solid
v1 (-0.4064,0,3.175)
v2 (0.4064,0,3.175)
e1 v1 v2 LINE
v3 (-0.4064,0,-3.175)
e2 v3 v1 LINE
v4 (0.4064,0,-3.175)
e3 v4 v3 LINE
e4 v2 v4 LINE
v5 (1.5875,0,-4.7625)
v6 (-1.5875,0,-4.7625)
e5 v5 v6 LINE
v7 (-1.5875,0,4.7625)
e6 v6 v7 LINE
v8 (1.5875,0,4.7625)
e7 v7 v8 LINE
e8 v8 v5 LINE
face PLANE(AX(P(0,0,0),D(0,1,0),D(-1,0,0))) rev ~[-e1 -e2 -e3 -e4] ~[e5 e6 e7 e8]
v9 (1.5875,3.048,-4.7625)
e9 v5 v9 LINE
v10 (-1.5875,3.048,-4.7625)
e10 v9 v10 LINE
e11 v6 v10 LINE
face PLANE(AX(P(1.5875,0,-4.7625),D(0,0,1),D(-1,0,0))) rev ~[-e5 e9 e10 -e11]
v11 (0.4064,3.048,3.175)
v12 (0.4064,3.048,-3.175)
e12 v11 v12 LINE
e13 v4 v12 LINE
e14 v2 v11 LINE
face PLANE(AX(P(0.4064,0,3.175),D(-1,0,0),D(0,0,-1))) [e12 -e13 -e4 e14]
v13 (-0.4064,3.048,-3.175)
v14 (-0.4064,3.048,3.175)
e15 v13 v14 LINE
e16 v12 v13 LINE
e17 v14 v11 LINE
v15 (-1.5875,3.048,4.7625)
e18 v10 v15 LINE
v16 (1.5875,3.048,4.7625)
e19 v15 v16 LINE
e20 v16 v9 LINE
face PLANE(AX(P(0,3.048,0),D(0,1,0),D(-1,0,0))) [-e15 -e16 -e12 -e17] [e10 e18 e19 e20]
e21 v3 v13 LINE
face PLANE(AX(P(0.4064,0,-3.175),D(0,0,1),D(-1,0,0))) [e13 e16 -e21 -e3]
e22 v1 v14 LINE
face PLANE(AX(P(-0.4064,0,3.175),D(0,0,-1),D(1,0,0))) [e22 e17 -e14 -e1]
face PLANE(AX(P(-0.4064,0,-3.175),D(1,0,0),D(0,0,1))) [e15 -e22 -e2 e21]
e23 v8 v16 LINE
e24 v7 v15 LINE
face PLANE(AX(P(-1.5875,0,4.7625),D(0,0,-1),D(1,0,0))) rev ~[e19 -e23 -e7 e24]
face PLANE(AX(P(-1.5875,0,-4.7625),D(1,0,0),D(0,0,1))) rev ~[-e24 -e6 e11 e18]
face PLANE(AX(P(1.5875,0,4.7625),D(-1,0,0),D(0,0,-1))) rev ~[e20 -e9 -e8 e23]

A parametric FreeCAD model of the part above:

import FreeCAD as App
import Part
import Sketcher
Q = App.Units.Quantity

doc = App.newDocument("Part")
body = doc.addObject("PartDesign::Body", "Body")

sketch1 = body.newObject("Sketcher::SketchObject", "Sketch")
sketch1.AttachmentSupport = (doc.getObject("XZ_Plane"), [""])
sketch1.MapMode = "FlatFace"
sketch1.addGeometry([
    Part.LineSegment(App.Vector(1.6, 4.8, 0), App.Vector(1.6, -4.8, 0)),
    Part.LineSegment(App.Vector(1.6, -4.8, 0), App.Vector(-1.6, -4.8, 0)),
    Part.LineSegment(App.Vector(-1.6, -4.8, 0), App.Vector(-1.6, 4.8, 0)),
    Part.LineSegment(App.Vector(-1.6, 4.8, 0), App.Vector(1.6, 4.8, 0)),
    Part.LineSegment(App.Vector(-0.4, -3.2, 0), App.Vector(0.4, -3.2, 0)),
    Part.LineSegment(App.Vector(0.4, -3.2, 0), App.Vector(0.4, 3.2, 0)),
    Part.LineSegment(App.Vector(0.4, 3.2, 0), App.Vector(-0.4, 3.2, 0)),
    Part.LineSegment(App.Vector(-0.4, 3.2, 0), App.Vector(-0.4, -3.2, 0)),
], False)
sketch1.addConstraint([
    Sketcher.Constraint("Coincident", 0, 2, 1, 1),
    Sketcher.Constraint("Coincident", 1, 2, 2, 1),
    Sketcher.Constraint("Coincident", 2, 2, 3, 1),
    Sketcher.Constraint("Coincident", 3, 2, 0, 1),
    Sketcher.Constraint("Coincident", 4, 2, 5, 1),
    Sketcher.Constraint("Coincident", 5, 2, 6, 1),
    Sketcher.Constraint("Coincident", 6, 2, 7, 1),
    Sketcher.Constraint("Coincident", 7, 2, 4, 1),
    Sketcher.Constraint("Vertical", 0),
    Sketcher.Constraint("Horizontal", 1),
    Sketcher.Constraint("Vertical", 2),
    Sketcher.Constraint("Horizontal", 3),
    Sketcher.Constraint("Horizontal", 4),
    Sketcher.Constraint("Vertical", 5),
    Sketcher.Constraint("Horizontal", 6),
    Sketcher.Constraint("Vertical", 7),
    Sketcher.Constraint("Symmetric", 0, 2, 2, 2, -1, 1),
    Sketcher.Constraint("Symmetric", 4, 2, 6, 2, -1, 1),
    Sketcher.Constraint("DistanceY", 5, 1, 5, 2, Q("0.25 in")),
    Sketcher.Constraint("DistanceX", 1, 2, 1, 1, Q("0.125 in")),
    Sketcher.Constraint("DistanceX", 4, 1, 4, 2, Q("0.032 in")),
    Sketcher.Constraint("DistanceY", 0, 2, 0, 1, Q("0.375 in")),
])
pad1 = body.newObject("PartDesign::Pad", "Pad")
pad1.Profile = sketch1
pad1.Length = Q("0.12 in")
pad1.Reversed = True

doc.recompute()
